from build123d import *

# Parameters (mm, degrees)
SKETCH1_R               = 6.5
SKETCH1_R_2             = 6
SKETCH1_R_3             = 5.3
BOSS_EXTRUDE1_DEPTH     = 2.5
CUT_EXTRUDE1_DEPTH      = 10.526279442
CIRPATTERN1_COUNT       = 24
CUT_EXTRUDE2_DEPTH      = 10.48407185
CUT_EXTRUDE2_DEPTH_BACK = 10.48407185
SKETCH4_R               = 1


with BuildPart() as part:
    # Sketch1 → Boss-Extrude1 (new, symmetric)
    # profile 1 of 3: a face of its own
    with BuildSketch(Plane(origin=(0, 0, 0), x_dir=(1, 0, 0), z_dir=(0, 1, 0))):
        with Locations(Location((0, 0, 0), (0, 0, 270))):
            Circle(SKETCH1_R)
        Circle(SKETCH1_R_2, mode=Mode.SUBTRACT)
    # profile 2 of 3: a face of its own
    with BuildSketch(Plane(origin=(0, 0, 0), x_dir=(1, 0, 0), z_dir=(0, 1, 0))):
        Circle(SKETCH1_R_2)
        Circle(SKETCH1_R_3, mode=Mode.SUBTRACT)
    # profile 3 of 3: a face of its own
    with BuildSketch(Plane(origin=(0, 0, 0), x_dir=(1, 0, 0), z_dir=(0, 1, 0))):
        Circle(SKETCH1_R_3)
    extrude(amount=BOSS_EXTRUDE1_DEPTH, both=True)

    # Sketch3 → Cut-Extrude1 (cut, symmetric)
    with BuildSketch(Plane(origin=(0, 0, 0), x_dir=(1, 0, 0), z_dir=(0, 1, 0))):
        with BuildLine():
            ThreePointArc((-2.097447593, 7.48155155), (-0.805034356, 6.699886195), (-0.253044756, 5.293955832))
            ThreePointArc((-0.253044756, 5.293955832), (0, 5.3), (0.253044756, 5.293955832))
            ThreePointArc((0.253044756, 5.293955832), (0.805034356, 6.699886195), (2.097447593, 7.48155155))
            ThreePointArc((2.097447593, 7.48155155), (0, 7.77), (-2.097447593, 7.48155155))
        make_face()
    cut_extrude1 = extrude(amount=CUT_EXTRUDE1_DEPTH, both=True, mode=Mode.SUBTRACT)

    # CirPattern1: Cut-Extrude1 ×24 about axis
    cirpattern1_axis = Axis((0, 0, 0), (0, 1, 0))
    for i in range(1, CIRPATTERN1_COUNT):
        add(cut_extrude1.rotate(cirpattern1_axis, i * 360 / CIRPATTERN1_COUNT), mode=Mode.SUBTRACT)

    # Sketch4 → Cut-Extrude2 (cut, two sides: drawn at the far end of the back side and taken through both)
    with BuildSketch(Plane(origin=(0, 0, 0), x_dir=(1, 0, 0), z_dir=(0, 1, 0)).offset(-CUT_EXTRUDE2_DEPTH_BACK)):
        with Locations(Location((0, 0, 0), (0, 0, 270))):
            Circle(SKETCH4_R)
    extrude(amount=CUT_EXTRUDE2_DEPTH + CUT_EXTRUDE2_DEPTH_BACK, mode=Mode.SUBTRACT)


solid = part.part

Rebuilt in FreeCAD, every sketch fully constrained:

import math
import FreeCAD as App
import Part
import Sketcher

doc = App.newDocument("Part")
body = doc.addObject("PartDesign::Body", "Body")

sketch1 = doc.addObject("Sketcher::SketchObject", "Sketch")
body.addObject(sketch1)
sketch1.AttachmentSupport = (doc.XZ_Plane, [""])
sketch1.MapMode = "FlatFace"
sketch1.addGeometry(Part.Circle(App.Vector(0, 0, 0), App.Vector(0, 0, 1), 6), False)
sketch1.addConstraint(Sketcher.Constraint("Coincident", 0, 3, -1, 1))
sketch1.addConstraint(Sketcher.Constraint("Diameter", 0, 13.0))
pad1 = doc.addObject("PartDesign::Pad", "Pad")
body.addObject(pad1)
pad1.Profile = sketch1
pad1.Length = 5
pad1.Midplane = True

sketch2 = doc.addObject("Sketcher::SketchObject", "Sketch001")
body.addObject(sketch2)
sketch2.AttachmentSupport = (doc.XZ_Plane, [""])
sketch2.MapMode = "FlatFace"
sketch2.addGeometry(Part.ArcOfCircle(Part.Circle(App.Vector(-2.6, -5.2, 0), App.Vector(0, 0, 1), 2.4), math.radians(-78), math.radians(-3)), False)
sketch2.addGeometry(Part.ArcOfCircle(Part.Circle(App.Vector(0, 0, 0), App.Vector(0, 0, 1), 5.3), math.radians(-92.74), math.radians(-87.26)), False)
sketch2.addGeometry(Part.ArcOfCircle(Part.Circle(App.Vector(2.6, -5.2, 0), App.Vector(0, 0, 1), 2.4), math.radians(-177), math.radians(-102)), False)
sketch2.addGeometry(Part.ArcOfCircle(Part.Circle(App.Vector(0, 0, 0), App.Vector(0, 0, 1), 7.8), math.radians(-106), math.radians(-74)), False)
sketch2.addConstraint(Sketcher.Constraint("Coincident", 0, 2, 1, 1))
sketch2.addConstraint(Sketcher.Constraint("Coincident", 1, 2, 2, 1))
sketch2.addConstraint(Sketcher.Constraint("Coincident", 2, 2, 3, 2))
sketch2.addConstraint(Sketcher.Constraint("Coincident", 3, 1, 0, 1))
sketch2.addConstraint(Sketcher.Constraint("Coincident", 1, 3, -1, 1))
sketch2.addConstraint(Sketcher.Constraint("Coincident", 3, 3, -1, 1))
sketch2.addConstraint(Sketcher.Constraint("Equal", 0, 2))
sketch2.addConstraint(Sketcher.Constraint("Symmetric", 0, 3, 2, 3, -2))
sketch2.addConstraint(Sketcher.Constraint("Radius", 1, 5.3))
sketch2.addConstraint(Sketcher.Constraint("Radius", 3, 7.77))
sketch2.addConstraint(Sketcher.Constraint("Radius", 0, 2.355605))
sketch2.addConstraint(Sketcher.Constraint("DistanceY", 0, 3, -1, 1, 5.181489))
sketch2.addConstraint(Sketcher.Constraint("DistanceY", 2, 2, -1, 1, 7.481552))
pocket1 = doc.addObject("PartDesign::Pocket", "Pocket")
body.addObject(pocket1)
pocket1.Profile = sketch2
pocket1.Length = 21.052559
pocket1.Midplane = True
doc.recompute()

polarpattern = doc.addObject("PartDesign::PolarPattern", "PolarPattern")
body.addObject(polarpattern)
polarpattern.Originals = [pocket1]
polarpattern.Axis = (doc.Y_Axis, [""])
polarpattern.Angle = 360
polarpattern.Occurrences = 24
body.Tip = polarpattern

sketch3 = doc.addObject("Sketcher::SketchObject", "Sketch002")
body.addObject(sketch3)
sketch3.AttachmentSupport = (doc.XZ_Plane, [""])
sketch3.MapMode = "FlatFace"
sketch3.addGeometry(Part.Circle(App.Vector(0, 0, 0), App.Vector(0, 0, 1), 1), False)
sketch3.addConstraint(Sketcher.Constraint("Coincident", 0, 3, -1, 1))
sketch3.addConstraint(Sketcher.Constraint("Diameter", 0, 2.0))
pocket2 = doc.addObject("PartDesign::Pocket", "Pocket001")
body.addObject(pocket2)
pocket2.Profile = sketch3
pocket2.Type = "ThroughAll"
pocket2.Midplane = True

doc.recompute()
